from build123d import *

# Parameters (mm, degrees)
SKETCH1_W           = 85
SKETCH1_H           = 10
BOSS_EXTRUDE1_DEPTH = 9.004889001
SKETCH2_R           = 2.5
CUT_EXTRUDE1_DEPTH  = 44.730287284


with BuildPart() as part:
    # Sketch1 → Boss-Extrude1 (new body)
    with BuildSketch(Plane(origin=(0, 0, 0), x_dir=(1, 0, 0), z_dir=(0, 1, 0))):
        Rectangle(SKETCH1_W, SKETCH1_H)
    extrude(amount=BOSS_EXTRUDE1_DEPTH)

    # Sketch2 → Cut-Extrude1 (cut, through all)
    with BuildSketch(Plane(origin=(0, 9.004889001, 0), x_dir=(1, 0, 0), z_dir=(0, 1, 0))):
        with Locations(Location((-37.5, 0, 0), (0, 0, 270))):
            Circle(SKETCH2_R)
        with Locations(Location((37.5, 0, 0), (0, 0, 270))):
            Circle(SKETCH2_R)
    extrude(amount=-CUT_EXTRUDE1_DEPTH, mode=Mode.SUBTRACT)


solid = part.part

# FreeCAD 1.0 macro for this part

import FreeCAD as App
import Part
import Sketcher
Q = App.Units.Quantity

doc = App.newDocument("Part")
body = doc.addObject("PartDesign::Body", "Body")

# Sketch on XZ plane
sketch1 = body.newObject("Sketcher::SketchObject", "Sketch")
sketch1.AttachmentSupport = (doc.getObject("XZ_Plane"), [""])
sketch1.MapMode = "FlatFace"
sketch1.addGeometry([
    Part.LineSegment(App.Vector(-42, -5, 0), App.Vector(-42, 5, 0)),
    Part.LineSegment(App.Vector(-42, 5, 0), App.Vector(42, 5, 0)),
    Part.LineSegment(App.Vector(42, 5, 0), App.Vector(42, -5, 0)),
    Part.LineSegment(App.Vector(42, -5, 0), App.Vector(-42, -5, 0)),
], False)
sketch1.addConstraint([
    Sketcher.Constraint("Coincident", 0, 2, 1, 1),
    Sketcher.Constraint("Coincident", 1, 2, 2, 1),
    Sketcher.Constraint("Coincident", 2, 2, 3, 1),
    Sketcher.Constraint("Coincident", 3, 2, 0, 1),
    Sketcher.Constraint("Vertical", 0),
    Sketcher.Constraint("Horizontal", 1),
    Sketcher.Constraint("Vertical", 2),
    Sketcher.Constraint("Horizontal", 3),
    Sketcher.Constraint("Symmetric", 0, 2, 2, 2, -1, 1),
    Sketcher.Constraint("DistanceX", 1, 1, 1, 2, Q("85 mm")),
    Sketcher.Constraint("DistanceY", 0, 1, 0, 2, Q("10 mm")),
])
pad1 = body.newObject("PartDesign::Pad", "Pad")
pad1.Profile = sketch1
pad1.Length = 9.004889
pad1.Reversed = True

# Sketch on XZ plane
sketch2 = body.newObject("Sketcher::SketchObject", "Sketch001")
sketch2.AttachmentSupport = (doc.getObject("XZ_Plane"), [""])
sketch2.MapMode = "FlatFace"
sketch2.AttachmentOffset = App.Placement(App.Vector(0, 0, -9.004889), App.Rotation())
sketch2.addGeometry([
    Part.Circle(App.Vector(-37.5, 0, 0), App.Vector(0, 0, 1), 2.5),
    Part.Circle(App.Vector(37.5, 0, 0), App.Vector(0, 0, 1), 2.5),
], False)
sketch2.addConstraint([
    Sketcher.Constraint("Equal", 0, 1),
    Sketcher.Constraint("Symmetric", 0, 3, 1, 3, -1, 1),
    Sketcher.Constraint("PointOnObject", 0, 3, -1),
    Sketcher.Constraint("Diameter", 0, Q("5 mm")),
    Sketcher.Constraint("DistanceX", 0, 3, 1, 3, Q("75 mm")),
])
pocket1 = body.newObject("PartDesign::Pocket", "Pocket")
pocket1.Profile = sketch2
pocket1.Type = "ThroughAll"
pocket1.Reversed = True

doc.recompute()
